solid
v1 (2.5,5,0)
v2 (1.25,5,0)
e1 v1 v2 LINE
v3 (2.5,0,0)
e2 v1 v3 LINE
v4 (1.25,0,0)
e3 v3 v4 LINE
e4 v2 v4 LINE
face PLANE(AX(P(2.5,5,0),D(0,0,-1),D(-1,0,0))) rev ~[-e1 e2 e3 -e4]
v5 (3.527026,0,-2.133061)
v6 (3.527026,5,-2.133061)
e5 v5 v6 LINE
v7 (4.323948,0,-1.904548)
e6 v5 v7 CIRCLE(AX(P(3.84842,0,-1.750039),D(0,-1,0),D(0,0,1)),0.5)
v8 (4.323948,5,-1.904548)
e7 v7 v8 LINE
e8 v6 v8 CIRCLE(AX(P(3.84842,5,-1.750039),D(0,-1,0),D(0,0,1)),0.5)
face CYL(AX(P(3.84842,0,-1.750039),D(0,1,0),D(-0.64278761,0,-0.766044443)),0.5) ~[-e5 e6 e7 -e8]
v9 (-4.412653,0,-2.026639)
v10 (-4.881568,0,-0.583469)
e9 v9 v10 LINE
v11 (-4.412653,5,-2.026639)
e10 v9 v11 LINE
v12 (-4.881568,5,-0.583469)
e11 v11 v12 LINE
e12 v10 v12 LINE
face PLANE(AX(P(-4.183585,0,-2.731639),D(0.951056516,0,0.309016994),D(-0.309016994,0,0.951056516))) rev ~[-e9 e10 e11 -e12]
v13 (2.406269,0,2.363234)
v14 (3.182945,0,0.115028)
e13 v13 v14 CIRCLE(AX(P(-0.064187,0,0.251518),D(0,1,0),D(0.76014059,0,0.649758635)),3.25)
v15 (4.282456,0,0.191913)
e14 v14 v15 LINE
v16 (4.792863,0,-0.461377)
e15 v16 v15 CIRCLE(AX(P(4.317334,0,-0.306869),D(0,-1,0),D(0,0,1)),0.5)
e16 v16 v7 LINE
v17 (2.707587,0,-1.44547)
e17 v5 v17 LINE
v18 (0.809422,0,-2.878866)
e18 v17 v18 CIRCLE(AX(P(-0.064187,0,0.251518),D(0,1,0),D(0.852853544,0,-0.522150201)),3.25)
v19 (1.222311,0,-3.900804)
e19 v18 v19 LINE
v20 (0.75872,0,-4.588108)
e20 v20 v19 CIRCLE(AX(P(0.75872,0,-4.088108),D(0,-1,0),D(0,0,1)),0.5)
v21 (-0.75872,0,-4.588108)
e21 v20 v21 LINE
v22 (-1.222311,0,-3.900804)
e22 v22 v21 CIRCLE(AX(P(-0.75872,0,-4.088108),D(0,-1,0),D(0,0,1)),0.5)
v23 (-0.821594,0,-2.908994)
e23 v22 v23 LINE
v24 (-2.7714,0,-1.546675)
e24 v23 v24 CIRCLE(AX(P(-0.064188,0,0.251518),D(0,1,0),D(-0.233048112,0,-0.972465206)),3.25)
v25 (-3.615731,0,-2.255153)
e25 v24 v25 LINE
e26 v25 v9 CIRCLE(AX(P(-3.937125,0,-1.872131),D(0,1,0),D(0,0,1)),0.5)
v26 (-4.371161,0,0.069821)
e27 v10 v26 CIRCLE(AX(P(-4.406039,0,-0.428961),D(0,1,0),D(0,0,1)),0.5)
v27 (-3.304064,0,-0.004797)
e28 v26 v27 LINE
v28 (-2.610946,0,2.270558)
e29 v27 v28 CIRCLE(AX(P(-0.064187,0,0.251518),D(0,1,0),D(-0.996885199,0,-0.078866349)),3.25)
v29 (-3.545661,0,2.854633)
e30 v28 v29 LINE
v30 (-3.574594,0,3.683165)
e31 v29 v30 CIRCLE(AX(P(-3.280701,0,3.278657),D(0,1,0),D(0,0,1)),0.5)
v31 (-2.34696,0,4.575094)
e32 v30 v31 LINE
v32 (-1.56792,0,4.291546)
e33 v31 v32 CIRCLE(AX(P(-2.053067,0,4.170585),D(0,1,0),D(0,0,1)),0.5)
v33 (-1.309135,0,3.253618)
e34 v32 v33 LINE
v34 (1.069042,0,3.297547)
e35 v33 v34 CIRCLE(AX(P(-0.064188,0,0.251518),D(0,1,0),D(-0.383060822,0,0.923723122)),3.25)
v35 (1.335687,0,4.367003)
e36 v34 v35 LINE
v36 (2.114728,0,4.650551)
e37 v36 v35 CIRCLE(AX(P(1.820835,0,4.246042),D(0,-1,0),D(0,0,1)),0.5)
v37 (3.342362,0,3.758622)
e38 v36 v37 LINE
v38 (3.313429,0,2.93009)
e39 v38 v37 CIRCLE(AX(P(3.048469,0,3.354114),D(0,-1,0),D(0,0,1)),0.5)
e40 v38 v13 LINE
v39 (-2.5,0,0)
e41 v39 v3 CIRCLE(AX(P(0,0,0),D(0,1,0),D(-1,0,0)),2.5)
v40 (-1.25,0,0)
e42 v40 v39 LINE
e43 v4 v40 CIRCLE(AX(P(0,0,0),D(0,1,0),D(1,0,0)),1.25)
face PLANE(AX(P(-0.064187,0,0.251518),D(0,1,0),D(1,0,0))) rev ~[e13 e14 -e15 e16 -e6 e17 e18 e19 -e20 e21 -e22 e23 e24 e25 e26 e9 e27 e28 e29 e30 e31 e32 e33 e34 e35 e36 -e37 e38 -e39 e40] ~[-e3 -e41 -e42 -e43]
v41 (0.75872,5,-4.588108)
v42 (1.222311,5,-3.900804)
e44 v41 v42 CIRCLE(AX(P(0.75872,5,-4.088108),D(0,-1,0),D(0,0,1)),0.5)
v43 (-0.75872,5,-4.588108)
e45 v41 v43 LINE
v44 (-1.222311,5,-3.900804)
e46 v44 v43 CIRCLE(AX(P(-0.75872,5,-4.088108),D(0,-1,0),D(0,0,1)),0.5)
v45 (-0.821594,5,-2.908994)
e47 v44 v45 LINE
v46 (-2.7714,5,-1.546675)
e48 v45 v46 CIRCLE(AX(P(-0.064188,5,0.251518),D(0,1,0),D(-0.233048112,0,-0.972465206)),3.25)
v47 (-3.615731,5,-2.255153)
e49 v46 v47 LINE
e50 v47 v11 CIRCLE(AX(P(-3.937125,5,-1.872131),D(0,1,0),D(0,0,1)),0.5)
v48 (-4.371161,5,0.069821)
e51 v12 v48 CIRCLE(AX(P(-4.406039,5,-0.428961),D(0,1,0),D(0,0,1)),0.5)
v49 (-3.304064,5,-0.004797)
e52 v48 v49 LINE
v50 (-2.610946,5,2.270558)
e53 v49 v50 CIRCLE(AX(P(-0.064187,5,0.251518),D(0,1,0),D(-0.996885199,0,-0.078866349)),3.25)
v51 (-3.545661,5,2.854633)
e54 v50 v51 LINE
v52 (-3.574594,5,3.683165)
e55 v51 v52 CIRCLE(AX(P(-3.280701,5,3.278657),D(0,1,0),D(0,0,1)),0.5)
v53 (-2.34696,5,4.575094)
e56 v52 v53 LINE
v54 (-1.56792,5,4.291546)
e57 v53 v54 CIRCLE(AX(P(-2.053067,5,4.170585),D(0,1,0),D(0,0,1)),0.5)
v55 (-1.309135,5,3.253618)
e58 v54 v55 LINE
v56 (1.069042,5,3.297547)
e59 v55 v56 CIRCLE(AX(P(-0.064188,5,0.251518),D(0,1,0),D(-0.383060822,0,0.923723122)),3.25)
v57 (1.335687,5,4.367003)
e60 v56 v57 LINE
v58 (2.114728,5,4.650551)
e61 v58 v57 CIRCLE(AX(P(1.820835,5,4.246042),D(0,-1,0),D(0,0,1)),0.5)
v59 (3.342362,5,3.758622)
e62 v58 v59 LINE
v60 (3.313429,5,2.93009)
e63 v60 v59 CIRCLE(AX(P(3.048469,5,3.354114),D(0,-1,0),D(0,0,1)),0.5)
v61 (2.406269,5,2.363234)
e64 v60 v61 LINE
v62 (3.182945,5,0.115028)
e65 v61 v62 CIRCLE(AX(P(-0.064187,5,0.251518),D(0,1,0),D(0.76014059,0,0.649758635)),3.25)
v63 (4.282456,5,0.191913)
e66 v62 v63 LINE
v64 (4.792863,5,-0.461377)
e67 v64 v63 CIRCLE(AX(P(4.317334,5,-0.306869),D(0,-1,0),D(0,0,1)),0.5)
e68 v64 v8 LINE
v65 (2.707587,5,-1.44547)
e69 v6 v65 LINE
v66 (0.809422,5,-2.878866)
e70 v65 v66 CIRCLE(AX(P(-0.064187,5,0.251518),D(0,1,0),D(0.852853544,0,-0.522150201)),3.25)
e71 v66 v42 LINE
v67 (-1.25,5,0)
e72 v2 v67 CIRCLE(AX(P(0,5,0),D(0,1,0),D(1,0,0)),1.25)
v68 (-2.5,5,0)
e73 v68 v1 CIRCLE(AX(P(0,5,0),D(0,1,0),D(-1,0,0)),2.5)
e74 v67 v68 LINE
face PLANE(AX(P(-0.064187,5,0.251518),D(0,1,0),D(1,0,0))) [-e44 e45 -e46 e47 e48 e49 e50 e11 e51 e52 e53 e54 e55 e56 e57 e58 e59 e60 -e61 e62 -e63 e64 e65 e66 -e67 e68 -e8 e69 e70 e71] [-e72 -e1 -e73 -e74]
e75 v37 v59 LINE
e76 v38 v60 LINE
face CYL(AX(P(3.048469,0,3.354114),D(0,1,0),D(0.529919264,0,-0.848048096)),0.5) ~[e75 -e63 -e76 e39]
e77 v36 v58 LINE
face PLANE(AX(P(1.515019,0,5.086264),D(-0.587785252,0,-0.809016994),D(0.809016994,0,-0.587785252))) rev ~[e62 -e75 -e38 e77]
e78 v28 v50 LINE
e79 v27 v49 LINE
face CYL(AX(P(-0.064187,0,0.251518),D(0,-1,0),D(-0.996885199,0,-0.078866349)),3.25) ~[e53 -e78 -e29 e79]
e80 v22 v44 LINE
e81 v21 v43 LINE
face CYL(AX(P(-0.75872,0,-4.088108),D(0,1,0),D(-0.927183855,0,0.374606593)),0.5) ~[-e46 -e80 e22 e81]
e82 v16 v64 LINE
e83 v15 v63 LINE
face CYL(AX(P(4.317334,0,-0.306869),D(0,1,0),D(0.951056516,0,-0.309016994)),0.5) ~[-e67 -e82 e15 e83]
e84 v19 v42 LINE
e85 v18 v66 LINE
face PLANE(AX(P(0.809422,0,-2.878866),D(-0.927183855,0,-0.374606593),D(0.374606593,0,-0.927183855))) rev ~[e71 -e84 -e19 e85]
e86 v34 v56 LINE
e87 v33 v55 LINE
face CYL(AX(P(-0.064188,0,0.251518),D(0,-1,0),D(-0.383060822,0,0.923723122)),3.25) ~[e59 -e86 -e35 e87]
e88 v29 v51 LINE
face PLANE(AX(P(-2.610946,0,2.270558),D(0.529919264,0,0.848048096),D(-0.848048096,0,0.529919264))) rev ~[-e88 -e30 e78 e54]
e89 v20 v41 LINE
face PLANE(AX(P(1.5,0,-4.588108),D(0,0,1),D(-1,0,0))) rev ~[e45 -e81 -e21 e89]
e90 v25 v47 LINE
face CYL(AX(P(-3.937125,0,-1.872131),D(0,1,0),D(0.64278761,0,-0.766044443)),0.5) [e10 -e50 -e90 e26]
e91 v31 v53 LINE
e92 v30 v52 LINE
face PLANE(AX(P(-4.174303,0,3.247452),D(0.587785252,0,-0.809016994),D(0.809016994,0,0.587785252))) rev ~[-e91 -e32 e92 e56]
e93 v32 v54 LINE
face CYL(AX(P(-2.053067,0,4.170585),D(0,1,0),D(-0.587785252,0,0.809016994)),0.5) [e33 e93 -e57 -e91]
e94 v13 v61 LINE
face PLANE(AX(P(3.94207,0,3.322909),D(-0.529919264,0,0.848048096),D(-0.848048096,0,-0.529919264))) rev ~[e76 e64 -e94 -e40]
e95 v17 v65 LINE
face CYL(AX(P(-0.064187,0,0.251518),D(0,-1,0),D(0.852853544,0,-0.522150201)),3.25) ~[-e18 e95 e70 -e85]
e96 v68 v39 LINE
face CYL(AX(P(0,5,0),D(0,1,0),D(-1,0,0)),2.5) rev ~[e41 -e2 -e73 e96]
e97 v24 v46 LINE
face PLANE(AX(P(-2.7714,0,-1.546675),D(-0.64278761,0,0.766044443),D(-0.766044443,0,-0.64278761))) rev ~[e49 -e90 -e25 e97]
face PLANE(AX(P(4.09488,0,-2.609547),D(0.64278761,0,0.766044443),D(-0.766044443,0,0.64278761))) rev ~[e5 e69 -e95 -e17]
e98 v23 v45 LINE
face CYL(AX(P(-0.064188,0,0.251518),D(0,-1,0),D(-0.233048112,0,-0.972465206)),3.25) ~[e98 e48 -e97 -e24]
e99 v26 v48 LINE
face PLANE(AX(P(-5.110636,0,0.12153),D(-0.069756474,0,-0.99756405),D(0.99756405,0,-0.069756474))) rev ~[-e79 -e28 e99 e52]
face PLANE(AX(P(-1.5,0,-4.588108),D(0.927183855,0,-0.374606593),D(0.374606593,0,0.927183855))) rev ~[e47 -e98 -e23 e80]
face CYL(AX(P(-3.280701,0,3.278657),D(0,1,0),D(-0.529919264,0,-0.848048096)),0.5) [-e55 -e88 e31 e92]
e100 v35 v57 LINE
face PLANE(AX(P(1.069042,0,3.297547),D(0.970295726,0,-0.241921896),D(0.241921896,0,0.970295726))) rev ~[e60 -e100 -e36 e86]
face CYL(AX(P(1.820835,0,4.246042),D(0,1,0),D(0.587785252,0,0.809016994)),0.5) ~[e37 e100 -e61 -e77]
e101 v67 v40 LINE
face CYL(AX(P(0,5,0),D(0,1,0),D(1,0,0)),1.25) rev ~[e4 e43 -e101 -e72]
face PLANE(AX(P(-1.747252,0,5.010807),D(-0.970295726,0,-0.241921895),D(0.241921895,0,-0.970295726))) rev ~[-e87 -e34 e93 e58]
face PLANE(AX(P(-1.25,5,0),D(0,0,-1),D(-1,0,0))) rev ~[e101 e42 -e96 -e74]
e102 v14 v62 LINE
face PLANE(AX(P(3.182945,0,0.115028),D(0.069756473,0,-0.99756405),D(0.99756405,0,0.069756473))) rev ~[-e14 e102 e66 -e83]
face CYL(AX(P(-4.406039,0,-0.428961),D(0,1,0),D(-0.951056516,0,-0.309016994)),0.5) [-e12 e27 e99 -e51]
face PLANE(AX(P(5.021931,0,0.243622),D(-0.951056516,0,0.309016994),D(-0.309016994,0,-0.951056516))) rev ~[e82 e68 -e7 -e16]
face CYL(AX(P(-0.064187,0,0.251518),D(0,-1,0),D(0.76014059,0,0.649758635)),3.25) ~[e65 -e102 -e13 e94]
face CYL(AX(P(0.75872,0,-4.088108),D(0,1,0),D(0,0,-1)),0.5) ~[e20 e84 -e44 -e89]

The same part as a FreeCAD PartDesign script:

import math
import FreeCAD as App
import Part
import Sketcher
Q = App.Units.Quantity


def edges_at(feature, points):
    """Names of the edges that pass closest to the given points."""
    edges = feature.Shape.Edges
    near = lambda p: min(range(len(edges)), key=lambda i: edges[i].distToShape(Part.Vertex(*p))[0])
    return sorted({f"Edge{near(p) + 1}" for p in points})

doc = App.newDocument("Part")
body = doc.addObject("PartDesign::Body", "Body")

# Sketch on XZ plane
sketch1 = body.newObject("Sketcher::SketchObject", "Sketch")
sketch1.AttachmentSupport = (doc.getObject("XZ_Plane"), [""])
sketch1.MapMode = "FlatFace"
sketch1.addGeometry([
    Part.LineSegment(App.Vector(-1.5, -4.6, 0), App.Vector(-0.8, -2.9, 0)),  # 0
    Part.ArcOfCircle(Part.Circle(App.Vector(-0.1, 0.3, 0), App.Vector(0, 0, 1), 3.2), math.radians(-146), math.radians(-103)),  # 1
    Part.LineSegment(App.Vector(-2.8, -1.5, 0), App.Vector(-4.2, -2.7, 0)),  # 2
    Part.LineSegment(App.Vector(-4.2, -2.7, 0), App.Vector(-5.1, 0.1, 0)),  # 3
    Part.LineSegment(App.Vector(-5.1, 0.1, 0), App.Vector(-3.3, 0, 0)),  # 4
    Part.ArcOfCircle(Part.Circle(App.Vector(-0.1, 0.3, 0), App.Vector(0, 0, 1), 3.3), math.radians(142), math.radians(185)),  # 5
    Part.LineSegment(App.Vector(-2.6, 2.3, 0), App.Vector(-4.2, 3.2, 0)),  # 6
    Part.LineSegment(App.Vector(-4.2, 3.2, 0), App.Vector(-1.7, 5, 0)),  # 7
    Part.LineSegment(App.Vector(-1.7, 5, 0), App.Vector(-1.3, 3.3, 0)),  # 8
    Part.ArcOfCircle(Part.Circle(App.Vector(-0.1, 0.3, 0), App.Vector(0, 0, 1), 3.3), math.radians(70), math.radians(113)),  # 9
    Part.LineSegment(App.Vector(1.1, 3.3, 0), App.Vector(1.5, 5.1, 0)),  # 10
    Part.LineSegment(App.Vector(1.5, 5.1, 0), App.Vector(3.9, 3.3, 0)),  # 11
    Part.LineSegment(App.Vector(3.9, 3.3, 0), App.Vector(2.4, 2.4, 0)),  # 12
    Part.ArcOfCircle(Part.Circle(App.Vector(-0.1, 0.3, 0), App.Vector(0, 0, 1), 3.2), math.radians(-2), math.radians(41)),  # 13
    Part.LineSegment(App.Vector(3.2, 0.1, 0), App.Vector(5, 0.2, 0)),  # 14
    Part.LineSegment(App.Vector(5, 0.2, 0), App.Vector(4.1, -2.6, 0)),  # 15
    Part.LineSegment(App.Vector(4.1, -2.6, 0), App.Vector(2.7, -1.4, 0)),  # 16
    Part.ArcOfCircle(Part.Circle(App.Vector(-0.1, 0.3, 0), App.Vector(0, 0, 1), 3.2), math.radians(-74), math.radians(-31)),  # 17
    Part.LineSegment(App.Vector(0.8, -2.9, 0), App.Vector(1.5, -4.6, 0)),  # 18
    Part.LineSegment(App.Vector(1.5, -4.6, 0), App.Vector(-1.5, -4.6, 0)),  # 19
], False)
sketch1.addConstraint([
    Sketcher.Constraint("Coincident", 0, 2, 1, 2),
    Sketcher.Constraint("Coincident", 1, 1, 2, 1),
    Sketcher.Constraint("Coincident", 2, 2, 3, 1),
    Sketcher.Constraint("Coincident", 3, 2, 4, 1),
    Sketcher.Constraint("Coincident", 4, 2, 5, 2),
    Sketcher.Constraint("Coincident", 5, 1, 6, 1),
    Sketcher.Constraint("Coincident", 6, 2, 7, 1),
    Sketcher.Constraint("Coincident", 7, 2, 8, 1),
    Sketcher.Constraint("Coincident", 8, 2, 9, 2),
    Sketcher.Constraint("Coincident", 9, 1, 10, 1),
    Sketcher.Constraint("Coincident", 10, 2, 11, 1),
    Sketcher.Constraint("Coincident", 11, 2, 12, 1),
    Sketcher.Constraint("Coincident", 12, 2, 13, 2),
    Sketcher.Constraint("Coincident", 13, 1, 14, 1),
    Sketcher.Constraint("Coincident", 14, 2, 15, 1),
    Sketcher.Constraint("Coincident", 15, 2, 16, 1),
    Sketcher.Constraint("Coincident", 16, 2, 17, 2),
    Sketcher.Constraint("Coincident", 17, 1, 18, 1),
    Sketcher.Constraint("Coincident", 18, 2, 19, 1),
    Sketcher.Constraint("Coincident", 19, 2, 0, 1),
    Sketcher.Constraint("Horizontal", 19),
    Sketcher.Constraint("Coincident", 5, 3, 1, 3),
    Sketcher.Constraint("Coincident", 9, 3, 1, 3),
    Sketcher.Constraint("Coincident", 13, 3, 1, 3),
    Sketcher.Constraint("Coincident", 17, 3, 1, 3),
    Sketcher.Constraint("Equal", 1, 5),
    Sketcher.Constraint("Equal", 5, 9),
    Sketcher.Constraint("Equal", 9, 13),
    Sketcher.Constraint("Equal", 13, 17),
    Sketcher.Constraint("Equal", 0, 4),
    Sketcher.Constraint("Equal", 2, 6),
    Sketcher.Constraint("Equal", 3, 7),
    Sketcher.Constraint("Equal", 4, 8),
    Sketcher.Constraint("Equal", 6, 10),
    Sketcher.Constraint("Equal", 7, 11),
    Sketcher.Constraint("Equal", 8, 12),
    Sketcher.Constraint("Equal", 10, 14),
    Sketcher.Constraint("Equal", 11, 15),
    Sketcher.Constraint("Equal", 12, 16),
    Sketcher.Constraint("Equal", 14, 18),
    Sketcher.Constraint("DistanceX", 19, 2, 19, 1, 3.0),
    Sketcher.Constraint("Angle", 0, Q("68 deg")),
    Sketcher.Constraint("Angle", 2, Q("-140 deg")),
    Sketcher.Constraint("Angle", 3, Q("108 deg")),
    Sketcher.Constraint("Angle", 4, Q("-4 deg")),
    Sketcher.Constraint("Angle", 6, Q("148 deg")),
    Sketcher.Constraint("Angle", 7, Q("36 deg")),
    Sketcher.Constraint("Angle", 8, Q("-76 deg")),
    Sketcher.Constraint("Angle", 10, Q("76 deg")),
    Sketcher.Constraint("Angle", 11, Q("-36 deg")),
    Sketcher.Constraint("Angle", 12, Q("-148 deg")),
    Sketcher.Constraint("Angle", 14, Q("4 deg")),
    Sketcher.Constraint("Angle", 15, Q("-108 deg")),
    Sketcher.Constraint("Angle", 16, Q("140 deg")),
    Sketcher.Constraint("Angle", 18, Q("-68 deg")),
    Sketcher.Constraint("Radius", 1, 3.25),
    Sketcher.Constraint("Distance", 3, 3.0),
    Sketcher.Constraint("DistanceX", -1, 1, 18, 2, 1.5),
    Sketcher.Constraint("DistanceX", 1, 1, -1, 1, 2.7714),
    Sketcher.Constraint("DistanceX", 12, 2, 11, 2, 1.535801),
    Sketcher.Constraint("DistanceY", -1, 1, 1, 3, 0.251518),
])
pad1 = body.newObject("PartDesign::Pad", "Pad")
pad1.Profile = sketch1
pad1.Length = 5
pad1.Reversed = True

# Sketch on XZ plane
sketch2 = body.newObject("Sketcher::SketchObject", "Sketch001")
sketch2.AttachmentSupport = (doc.getObject("XZ_Plane"), [""])
sketch2.MapMode = "FlatFace"
sketch2.AttachmentOffset = App.Placement(App.Vector(0, 0, -5), App.Rotation())
sketch2.addGeometry([
    Part.LineSegment(App.Vector(-1.2, 0, 0), App.Vector(-2.5, 0, 0)),
    Part.ArcOfCircle(Part.Circle(App.Vector(0, 0, 0), App.Vector(0, 0, 1), 2.5), math.radians(0), math.radians(180)),
    Part.LineSegment(App.Vector(2.5, 0, 0), App.Vector(1.2, 0, 0)),
    Part.ArcOfCircle(Part.Circle(App.Vector(0, 0, 0), App.Vector(0, 0, 1), 1.2), math.radians(180), math.radians(360)),
], False)
sketch2.addConstraint([
    Sketcher.Constraint("Coincident", 0, 2, 1, 2),
    Sketcher.Constraint("Coincident", 1, 1, 2, 1),
    Sketcher.Constraint("Coincident", 2, 2, 3, 2),
    Sketcher.Constraint("Coincident", 3, 1, 0, 1),
    Sketcher.Constraint("Horizontal", 0),
    Sketcher.Constraint("Horizontal", 2),
    Sketcher.Constraint("Coincident", 1, 3, -1, 1),
    Sketcher.Constraint("Coincident", 3, 3, -1, 1),
    Sketcher.Constraint("PointOnObject", 0, 2, -1),
    Sketcher.Constraint("PointOnObject", 1, 1, -1),
    Sketcher.Constraint("Radius", 1, 2.5),
    Sketcher.Constraint("Radius", 3, 1.25),
])
pocket1 = body.newObject("PartDesign::Pocket", "Pocket")
pocket1.Profile = sketch2
pocket1.Length = 10
pocket1.Reversed = True
doc.recompute()

fillet = body.newObject("PartDesign::Fillet", "Fillet")
fillet.Base = (pocket1, edges_at(pocket1, [
    (3.942, 2.5, 3.323),
    (1.515, 2.5, 5.086),
    (-1.747, 2.5, 5.011),
    (-4.174, 2.5, 3.247),
    (-5.111, 2.5, 0.122),
    (-4.184, 2.5, -2.732),
    (-1.5, 2.5, -4.588),
    (1.5, 2.5, -4.588),
    (4.095, 2.5, -2.61),
    (5.022, 2.5, 0.244),
]))
fillet.Radius = 0.5

doc.recompute()
